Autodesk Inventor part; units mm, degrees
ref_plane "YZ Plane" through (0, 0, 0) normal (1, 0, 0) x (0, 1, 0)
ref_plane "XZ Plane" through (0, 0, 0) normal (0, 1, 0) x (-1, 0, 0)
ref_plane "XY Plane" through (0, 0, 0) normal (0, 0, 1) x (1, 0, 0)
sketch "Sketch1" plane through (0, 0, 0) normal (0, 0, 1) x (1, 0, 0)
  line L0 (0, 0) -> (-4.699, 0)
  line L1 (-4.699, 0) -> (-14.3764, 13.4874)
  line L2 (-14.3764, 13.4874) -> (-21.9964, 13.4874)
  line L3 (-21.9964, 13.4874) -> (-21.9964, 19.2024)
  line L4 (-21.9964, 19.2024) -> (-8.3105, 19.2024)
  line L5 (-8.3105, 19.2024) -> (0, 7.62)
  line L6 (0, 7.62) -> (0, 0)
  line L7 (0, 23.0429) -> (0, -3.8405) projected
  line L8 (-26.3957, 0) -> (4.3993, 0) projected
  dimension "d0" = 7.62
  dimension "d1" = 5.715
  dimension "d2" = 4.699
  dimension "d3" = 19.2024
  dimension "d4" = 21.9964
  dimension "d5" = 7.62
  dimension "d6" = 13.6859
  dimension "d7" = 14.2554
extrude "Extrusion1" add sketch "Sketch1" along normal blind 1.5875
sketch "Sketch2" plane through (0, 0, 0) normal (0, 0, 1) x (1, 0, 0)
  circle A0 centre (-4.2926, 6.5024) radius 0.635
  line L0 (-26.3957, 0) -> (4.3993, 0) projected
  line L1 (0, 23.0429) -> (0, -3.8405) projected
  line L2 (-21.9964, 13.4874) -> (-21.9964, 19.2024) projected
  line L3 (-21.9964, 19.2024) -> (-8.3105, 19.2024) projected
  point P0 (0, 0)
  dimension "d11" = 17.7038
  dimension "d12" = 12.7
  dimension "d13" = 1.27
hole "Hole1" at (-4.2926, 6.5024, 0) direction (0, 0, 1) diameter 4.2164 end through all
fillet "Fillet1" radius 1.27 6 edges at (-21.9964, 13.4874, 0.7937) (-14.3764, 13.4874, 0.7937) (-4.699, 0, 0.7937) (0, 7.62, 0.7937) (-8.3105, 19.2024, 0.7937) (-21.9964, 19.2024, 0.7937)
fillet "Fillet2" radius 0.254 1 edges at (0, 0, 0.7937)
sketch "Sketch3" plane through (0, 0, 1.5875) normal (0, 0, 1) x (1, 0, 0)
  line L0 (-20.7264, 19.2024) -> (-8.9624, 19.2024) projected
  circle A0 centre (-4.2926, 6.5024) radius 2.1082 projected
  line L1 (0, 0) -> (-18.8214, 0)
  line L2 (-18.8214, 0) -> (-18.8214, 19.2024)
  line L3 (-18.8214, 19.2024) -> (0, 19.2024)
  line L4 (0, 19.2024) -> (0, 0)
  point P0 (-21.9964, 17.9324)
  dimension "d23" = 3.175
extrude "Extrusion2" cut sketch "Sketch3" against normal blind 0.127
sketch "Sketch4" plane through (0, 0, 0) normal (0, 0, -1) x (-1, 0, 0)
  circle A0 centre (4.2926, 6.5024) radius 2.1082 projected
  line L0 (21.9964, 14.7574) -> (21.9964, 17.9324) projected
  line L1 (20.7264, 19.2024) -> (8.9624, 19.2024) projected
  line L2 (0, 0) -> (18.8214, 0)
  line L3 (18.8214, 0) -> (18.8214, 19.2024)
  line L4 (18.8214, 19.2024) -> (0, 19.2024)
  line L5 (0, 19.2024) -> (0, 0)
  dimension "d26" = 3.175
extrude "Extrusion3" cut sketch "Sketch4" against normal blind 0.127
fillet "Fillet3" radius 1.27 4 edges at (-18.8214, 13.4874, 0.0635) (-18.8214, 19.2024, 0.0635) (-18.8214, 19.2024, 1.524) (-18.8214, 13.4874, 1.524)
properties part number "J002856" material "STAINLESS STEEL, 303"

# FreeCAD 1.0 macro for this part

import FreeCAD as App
import Part
import Sketcher
from FreeCAD import Vector
Q = App.Units.Quantity


def edges_at(feature, points):
    """Names of the edges that pass closest to the given points."""
    edges = feature.Shape.Edges
    near = lambda p: min(range(len(edges)), key=lambda i: edges[i].distToShape(Part.Vertex(*p))[0])
    return sorted({f"Edge{near(p) + 1}" for p in points})


def add_polygon(sketch, points):
    """Adds a closed chain of lines whose ends are joined by coincident constraints."""
    first, n = sketch.GeometryCount, len(points)
    for a, b in zip(points, points[1:] + points[:1]):
        sketch.addGeometry(Part.LineSegment(App.Vector(*a, 0), App.Vector(*b, 0)), False)
    for i in range(n):
        sketch.addConstraint(Sketcher.Constraint("Coincident", first + i, 2, first + (i + 1) % n, 1))

doc = App.newDocument("Part")
body = doc.addObject("PartDesign::Body", "Body")

# Sketch on XY plane
sketch1 = body.newObject("Sketcher::SketchObject", "Sketch")
sketch1.AttachmentSupport = (doc.getObject("XY_Plane"), [""])
sketch1.MapMode = "FlatFace"
add_polygon(sketch1, [(-4.7, 0), (0, 0), (0, 7.6), (-8.3, 19.2), (-22, 19.2), (-22, 13.5), (-14.4, 13.5)])  # lines 0-6
sketch1.addConstraint([
    Sketcher.Constraint("Horizontal", 0),
    Sketcher.Constraint("Vertical", 1),
    Sketcher.Constraint("Horizontal", 3),
    Sketcher.Constraint("Vertical", 4),
    Sketcher.Constraint("Horizontal", 5),
    Sketcher.Constraint("Coincident", 0, 2, -1, 1),
    Sketcher.Constraint("Parallel", 2, 6),
    Sketcher.Constraint("Equal", 5, 1),
    Sketcher.Constraint("DistanceX", 5, 1, 5, 2, Q("0.3 in")),
    Sketcher.Constraint("DistanceX", 0, 1, 0, 2, Q("0.185 in")),
    Sketcher.Constraint("DistanceY", 4, 2, 4, 1, Q("0.225 in")),
    Sketcher.Constraint("DistanceY", -1, 1, 2, 2, Q("0.756 in")),
    Sketcher.Constraint("DistanceX", 3, 2, -1, 1, Q("0.866 in")),
])
pad1 = body.newObject("PartDesign::Pad", "Pad")
pad1.Profile = sketch1
pad1.Length = Q("0.0625 in")

# Sketch on XY plane
sketch2 = body.newObject("Sketcher::SketchObject", "Sketch001")
sketch2.AttachmentSupport = (doc.getObject("XY_Plane"), [""])
sketch2.MapMode = "FlatFace"
sketch2.addGeometry(Part.Circle(Vector(-4.3, 6.5, 0), Vector(0, 0, 1), 2.1), False)
sketch2.addConstraint([
    Sketcher.Constraint("Diameter", 0, Q("0.166 in")),
    Sketcher.Constraint("DistanceX", 0, 3, -1, 1, Q("0.169 in")),
    Sketcher.Constraint("DistanceY", -1, 1, 0, 3, Q("0.256 in")),
])
doc.recompute()
hole = body.newObject("PartDesign::Hole", "Hole")
hole.Profile = sketch2
hole.ThreadType = "None"
hole.Diameter = Q("0.166 in")
hole.DepthType = "ThroughAll"
hole.Reversed = True
doc.recompute()

fillet = body.newObject("PartDesign::Fillet", "Fillet")
fillet.Base = (hole, edges_at(hole, [
    (-21.996, 13.487, 0.794),
    (-14.376, 13.487, 0.794),
    (-4.699, 0, 0.794),
    (0, 7.62, 0.794),
    (-8.31, 19.202, 0.794),
    (-21.996, 19.202, 0.794),
]))
fillet.Radius = Q("0.05 in")
doc.recompute()

fillet2 = body.newObject("PartDesign::Fillet", "Fillet001")
fillet2.Base = (fillet, edges_at(fillet, [(0, 0, 0.794)]))
fillet2.Radius = Q("0.01 in")

# Sketch on XY plane
sketch3 = body.newObject("Sketcher::SketchObject", "Sketch002")
sketch3.AttachmentSupport = (doc.getObject("XY_Plane"), [""])
sketch3.MapMode = "FlatFace"
sketch3.AttachmentOffset = App.Placement(Vector(0, 0, 0.0625 * 25.4), App.Rotation())
add_polygon(sketch3, [(0, 19.2), (-18.8, 19.2), (-18.8, 0), (0, 0)])  # lines 0-3
sketch3.addGeometry(Part.Circle(Vector(-4.3, 6.5, 0), Vector(0, 0, 1), 2.1), False)  # 4
sketch3.addConstraint([
    Sketcher.Constraint("Horizontal", 0),
    Sketcher.Constraint("Vertical", 1),
    Sketcher.Constraint("Horizontal", 2),
    Sketcher.Constraint("Vertical", 3),
    Sketcher.Constraint("Coincident", 2, 2, -1, 1),
    Sketcher.Constraint("Diameter", 4, Q("0.166 in")),
    Sketcher.Constraint("DistanceY", 4, 3, 0, 2, Q("0.5 in")),
    Sketcher.Constraint("DistanceX", 0, 2, 0, 1, Q("0.741 in")),
    Sketcher.Constraint("DistanceY", 1, 2, 1, 1, Q("0.756 in")),
    Sketcher.Constraint("DistanceX", 4, 3, -1, 1, Q("0.169 in")),
])
pocket1 = body.newObject("PartDesign::Pocket", "Pocket")
pocket1.Profile = sketch3
pocket1.Length = Q("0.005 in")

# Sketch on XY plane
sketch4 = body.newObject("Sketcher::SketchObject", "Sketch003")
sketch4.AttachmentSupport = (doc.getObject("XY_Plane"), [""])
sketch4.MapMode = "FlatFace"
add_polygon(sketch4, [(-18.8, 0), (-18.8, 19.2), (0, 19.2), (0, 0)])  # lines 0-3
sketch4.addGeometry(Part.Circle(Vector(-4.3, 6.5, 0), Vector(0, 0, 1), 2.1), False)  # 4
sketch4.addConstraint([
    Sketcher.Constraint("Vertical", 0),
    Sketcher.Constraint("Horizontal", 1),
    Sketcher.Constraint("Vertical", 2),
    Sketcher.Constraint("Horizontal", 3),
    Sketcher.Constraint("Coincident", 2, 2, -1, 1),
    Sketcher.Constraint("Diameter", 4, Q("0.166 in")),
    Sketcher.Constraint("DistanceY", 4, 3, 0, 2, Q("0.5 in")),
    Sketcher.Constraint("DistanceX", 1, 1, 1, 2, Q("0.741 in")),
    Sketcher.Constraint("DistanceY", 0, 1, 0, 2, Q("0.756 in")),
    Sketcher.Constraint("DistanceX", 4, 3, -1, 1, Q("0.169 in")),
])
pocket2 = body.newObject("PartDesign::Pocket", "Pocket001")
pocket2.Profile = sketch4
pocket2.Length = Q("0.005 in")
pocket2.Reversed = True
doc.recompute()

fillet3 = body.newObject("PartDesign::Fillet", "Fillet002")
fillet3.Base = (pocket2, edges_at(pocket2, [
    (-18.821, 13.487, 0.064),
    (-18.821, 19.202, 0.064),
    (-18.821, 19.202, 1.524),
    (-18.821, 13.487, 1.524),
]))
fillet3.Radius = Q("0.05 in")

doc.recompute()
